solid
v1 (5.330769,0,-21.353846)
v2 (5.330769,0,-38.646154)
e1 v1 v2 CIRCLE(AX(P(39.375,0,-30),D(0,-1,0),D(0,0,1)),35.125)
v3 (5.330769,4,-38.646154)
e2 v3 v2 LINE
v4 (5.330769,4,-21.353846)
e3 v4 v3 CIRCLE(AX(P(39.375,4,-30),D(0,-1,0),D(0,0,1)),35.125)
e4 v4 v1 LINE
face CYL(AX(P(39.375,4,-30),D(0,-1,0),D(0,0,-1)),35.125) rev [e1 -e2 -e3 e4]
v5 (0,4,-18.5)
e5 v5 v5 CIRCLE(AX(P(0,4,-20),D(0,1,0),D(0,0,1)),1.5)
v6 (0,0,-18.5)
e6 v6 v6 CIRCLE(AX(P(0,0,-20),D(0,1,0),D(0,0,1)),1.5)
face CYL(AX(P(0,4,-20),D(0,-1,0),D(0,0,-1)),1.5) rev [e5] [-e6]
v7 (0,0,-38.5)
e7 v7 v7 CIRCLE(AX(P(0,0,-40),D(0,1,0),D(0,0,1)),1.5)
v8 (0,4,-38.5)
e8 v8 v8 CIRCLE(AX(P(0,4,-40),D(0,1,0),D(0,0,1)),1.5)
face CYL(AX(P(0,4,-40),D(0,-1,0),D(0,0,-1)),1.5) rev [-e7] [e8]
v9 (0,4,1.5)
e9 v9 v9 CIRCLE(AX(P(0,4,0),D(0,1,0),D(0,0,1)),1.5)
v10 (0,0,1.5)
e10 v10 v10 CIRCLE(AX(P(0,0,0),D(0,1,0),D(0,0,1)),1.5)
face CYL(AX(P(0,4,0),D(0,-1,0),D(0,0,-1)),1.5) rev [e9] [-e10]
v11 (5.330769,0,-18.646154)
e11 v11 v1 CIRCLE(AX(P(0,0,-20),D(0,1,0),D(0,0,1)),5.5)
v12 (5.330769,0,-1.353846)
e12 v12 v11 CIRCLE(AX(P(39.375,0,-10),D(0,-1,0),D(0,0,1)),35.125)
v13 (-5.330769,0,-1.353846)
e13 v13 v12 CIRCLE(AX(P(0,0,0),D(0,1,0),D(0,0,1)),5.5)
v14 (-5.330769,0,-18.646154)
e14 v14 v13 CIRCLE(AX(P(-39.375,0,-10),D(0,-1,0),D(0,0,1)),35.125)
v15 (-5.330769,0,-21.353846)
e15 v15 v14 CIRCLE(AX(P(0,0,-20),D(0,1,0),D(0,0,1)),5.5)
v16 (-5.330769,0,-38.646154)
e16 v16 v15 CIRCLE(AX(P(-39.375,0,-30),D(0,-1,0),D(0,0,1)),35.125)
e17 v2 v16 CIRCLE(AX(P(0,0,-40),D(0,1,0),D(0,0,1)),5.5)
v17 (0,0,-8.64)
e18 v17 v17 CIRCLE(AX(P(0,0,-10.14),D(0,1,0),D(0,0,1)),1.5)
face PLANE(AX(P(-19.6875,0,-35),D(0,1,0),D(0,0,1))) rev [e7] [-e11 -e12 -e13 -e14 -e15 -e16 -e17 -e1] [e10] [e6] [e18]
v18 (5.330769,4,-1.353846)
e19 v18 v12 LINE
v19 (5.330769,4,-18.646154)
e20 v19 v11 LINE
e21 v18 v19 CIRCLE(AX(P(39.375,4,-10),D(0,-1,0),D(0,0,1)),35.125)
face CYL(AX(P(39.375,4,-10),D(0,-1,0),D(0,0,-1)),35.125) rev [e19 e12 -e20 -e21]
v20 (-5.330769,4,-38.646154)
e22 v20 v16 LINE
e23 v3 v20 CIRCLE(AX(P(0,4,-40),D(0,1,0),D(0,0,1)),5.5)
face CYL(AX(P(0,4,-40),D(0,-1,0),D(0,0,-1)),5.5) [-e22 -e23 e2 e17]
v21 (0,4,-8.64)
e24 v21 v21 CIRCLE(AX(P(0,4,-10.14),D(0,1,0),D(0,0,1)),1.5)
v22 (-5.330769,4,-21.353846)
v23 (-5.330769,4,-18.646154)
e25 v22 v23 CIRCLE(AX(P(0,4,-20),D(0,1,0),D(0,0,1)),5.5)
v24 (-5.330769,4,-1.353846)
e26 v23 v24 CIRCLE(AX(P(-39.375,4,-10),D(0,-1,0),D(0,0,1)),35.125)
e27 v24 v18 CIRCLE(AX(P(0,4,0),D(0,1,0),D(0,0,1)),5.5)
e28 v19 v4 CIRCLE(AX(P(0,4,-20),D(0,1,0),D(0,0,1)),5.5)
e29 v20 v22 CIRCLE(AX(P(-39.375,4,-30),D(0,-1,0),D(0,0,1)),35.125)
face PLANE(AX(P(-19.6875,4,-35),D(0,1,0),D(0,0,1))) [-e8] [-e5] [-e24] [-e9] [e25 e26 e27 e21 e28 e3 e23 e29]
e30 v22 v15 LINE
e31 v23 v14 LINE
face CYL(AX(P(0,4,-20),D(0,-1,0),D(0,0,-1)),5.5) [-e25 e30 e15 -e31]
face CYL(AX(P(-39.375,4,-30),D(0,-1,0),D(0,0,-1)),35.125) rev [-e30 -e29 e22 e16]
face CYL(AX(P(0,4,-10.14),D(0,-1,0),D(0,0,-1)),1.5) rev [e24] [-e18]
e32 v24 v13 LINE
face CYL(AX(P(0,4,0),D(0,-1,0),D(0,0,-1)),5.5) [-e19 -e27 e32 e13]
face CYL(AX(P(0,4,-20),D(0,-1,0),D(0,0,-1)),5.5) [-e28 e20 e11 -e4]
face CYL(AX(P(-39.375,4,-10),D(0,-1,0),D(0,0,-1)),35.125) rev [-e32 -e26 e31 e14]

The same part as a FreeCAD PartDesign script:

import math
import FreeCAD as App
import Part
import Sketcher
from FreeCAD import Vector

doc = App.newDocument("Part")
body = doc.addObject("PartDesign::Body", "Body")

sketch1 = doc.addObject("Sketcher::SketchObject", "Sketch")
body.addObject(sketch1)
sketch1.AttachmentSupport = (doc.XZ_Plane, [""])
sketch1.MapMode = "FlatFace"
sketch1.addGeometry([
    Part.ArcOfCircle(Part.Circle(Vector(0, 0, 0), Vector(0, 0, 1), 5.5), math.radians(-14.250033), math.radians(194.250033)),
    Part.ArcOfCircle(Part.Circle(Vector(39.375, -10, 0), Vector(0, 0, 1), 35.125), math.radians(165.749967), math.radians(194.250033)),
    Part.ArcOfCircle(Part.Circle(Vector(0, -20, 0), Vector(0, 0, 1), 5.5), math.radians(-14.250033), math.radians(14.250033)),
    Part.ArcOfCircle(Part.Circle(Vector(39.375, -30, 0), Vector(0, 0, 1), 35.125), math.radians(165.749967), math.radians(194.250033)),
    Part.ArcOfCircle(Part.Circle(Vector(0, -40, 0), Vector(0, 0, 1), 5.5), math.radians(165.749967), math.radians(374.250033)),
    Part.ArcOfCircle(Part.Circle(Vector(-39.375, -30, 0), Vector(0, 0, 1), 35.125), math.radians(-14.250033), math.radians(14.250033)),
    Part.ArcOfCircle(Part.Circle(Vector(0, -20, 0), Vector(0, 0, 1), 5.5), math.radians(165.749967), math.radians(194.250033)),
    Part.ArcOfCircle(Part.Circle(Vector(-39.375, -10, 0), Vector(0, 0, 1), 35.125), math.radians(-14.250033), math.radians(14.250033)),
    Part.Circle(Vector(0, 0, 0), Vector(0, 0, 1), 1.5),
    Part.Circle(Vector(0, -10.14, 0), Vector(0, 0, 1), 1.5),
    Part.Circle(Vector(0, -20, 0), Vector(0, 0, 1), 1.5),
    Part.Circle(Vector(0, -40, 0), Vector(0, 0, 1), 1.5),
], False)
sketch1.addConstraint([
    Sketcher.Constraint("Tangent", 0, 1, 1, 1),
    Sketcher.Constraint("Tangent", 1, 2, 2, 2),
    Sketcher.Constraint("Tangent", 2, 1, 3, 1),
    Sketcher.Constraint("Tangent", 3, 2, 4, 2),
    Sketcher.Constraint("Tangent", 4, 1, 5, 1),
    Sketcher.Constraint("Tangent", 5, 2, 6, 2),
    Sketcher.Constraint("Tangent", 6, 1, 7, 1),
    Sketcher.Constraint("Tangent", 7, 2, 0, 2),
    Sketcher.Constraint("Coincident", 0, 3, -1, 1),
    Sketcher.Constraint("Coincident", 8, 3, -1, 1),
    Sketcher.Constraint("Coincident", 6, 3, 2, 3),
    Sketcher.Constraint("Coincident", 10, 3, 2, 3),
    Sketcher.Constraint("Coincident", 11, 3, 4, 3),
    Sketcher.Constraint("Equal", 0, 2),
    Sketcher.Constraint("Equal", 1, 3),
    Sketcher.Constraint("Equal", 2, 4),
    Sketcher.Constraint("Equal", 3, 5),
    Sketcher.Constraint("Equal", 4, 6),
    Sketcher.Constraint("Equal", 5, 7),
    Sketcher.Constraint("Equal", 8, 9),
    Sketcher.Constraint("Equal", 9, 10),
    Sketcher.Constraint("Equal", 10, 11),
    Sketcher.Constraint("Symmetric", 3, 3, 5, 3, -2),
    Sketcher.Constraint("PointOnObject", 9, 3, -2),
    Sketcher.Constraint("Vertical", 1, 3, 3, 3),
    Sketcher.Constraint("Diameter", 8, 3.0),
    Sketcher.Constraint("Radius", 0, 5.5),
    Sketcher.Constraint("DistanceY", 1, 3, -1, 1, 10.0),
    Sketcher.Constraint("Radius", 1, 35.125),
    Sketcher.Constraint("DistanceY", 9, 3, -1, 1, 10.14),
])
pad1 = doc.addObject("PartDesign::Pad", "Pad")
body.addObject(pad1)
pad1.Profile = sketch1
pad1.Length = 4
pad1.Reversed = True

doc.recompute()
